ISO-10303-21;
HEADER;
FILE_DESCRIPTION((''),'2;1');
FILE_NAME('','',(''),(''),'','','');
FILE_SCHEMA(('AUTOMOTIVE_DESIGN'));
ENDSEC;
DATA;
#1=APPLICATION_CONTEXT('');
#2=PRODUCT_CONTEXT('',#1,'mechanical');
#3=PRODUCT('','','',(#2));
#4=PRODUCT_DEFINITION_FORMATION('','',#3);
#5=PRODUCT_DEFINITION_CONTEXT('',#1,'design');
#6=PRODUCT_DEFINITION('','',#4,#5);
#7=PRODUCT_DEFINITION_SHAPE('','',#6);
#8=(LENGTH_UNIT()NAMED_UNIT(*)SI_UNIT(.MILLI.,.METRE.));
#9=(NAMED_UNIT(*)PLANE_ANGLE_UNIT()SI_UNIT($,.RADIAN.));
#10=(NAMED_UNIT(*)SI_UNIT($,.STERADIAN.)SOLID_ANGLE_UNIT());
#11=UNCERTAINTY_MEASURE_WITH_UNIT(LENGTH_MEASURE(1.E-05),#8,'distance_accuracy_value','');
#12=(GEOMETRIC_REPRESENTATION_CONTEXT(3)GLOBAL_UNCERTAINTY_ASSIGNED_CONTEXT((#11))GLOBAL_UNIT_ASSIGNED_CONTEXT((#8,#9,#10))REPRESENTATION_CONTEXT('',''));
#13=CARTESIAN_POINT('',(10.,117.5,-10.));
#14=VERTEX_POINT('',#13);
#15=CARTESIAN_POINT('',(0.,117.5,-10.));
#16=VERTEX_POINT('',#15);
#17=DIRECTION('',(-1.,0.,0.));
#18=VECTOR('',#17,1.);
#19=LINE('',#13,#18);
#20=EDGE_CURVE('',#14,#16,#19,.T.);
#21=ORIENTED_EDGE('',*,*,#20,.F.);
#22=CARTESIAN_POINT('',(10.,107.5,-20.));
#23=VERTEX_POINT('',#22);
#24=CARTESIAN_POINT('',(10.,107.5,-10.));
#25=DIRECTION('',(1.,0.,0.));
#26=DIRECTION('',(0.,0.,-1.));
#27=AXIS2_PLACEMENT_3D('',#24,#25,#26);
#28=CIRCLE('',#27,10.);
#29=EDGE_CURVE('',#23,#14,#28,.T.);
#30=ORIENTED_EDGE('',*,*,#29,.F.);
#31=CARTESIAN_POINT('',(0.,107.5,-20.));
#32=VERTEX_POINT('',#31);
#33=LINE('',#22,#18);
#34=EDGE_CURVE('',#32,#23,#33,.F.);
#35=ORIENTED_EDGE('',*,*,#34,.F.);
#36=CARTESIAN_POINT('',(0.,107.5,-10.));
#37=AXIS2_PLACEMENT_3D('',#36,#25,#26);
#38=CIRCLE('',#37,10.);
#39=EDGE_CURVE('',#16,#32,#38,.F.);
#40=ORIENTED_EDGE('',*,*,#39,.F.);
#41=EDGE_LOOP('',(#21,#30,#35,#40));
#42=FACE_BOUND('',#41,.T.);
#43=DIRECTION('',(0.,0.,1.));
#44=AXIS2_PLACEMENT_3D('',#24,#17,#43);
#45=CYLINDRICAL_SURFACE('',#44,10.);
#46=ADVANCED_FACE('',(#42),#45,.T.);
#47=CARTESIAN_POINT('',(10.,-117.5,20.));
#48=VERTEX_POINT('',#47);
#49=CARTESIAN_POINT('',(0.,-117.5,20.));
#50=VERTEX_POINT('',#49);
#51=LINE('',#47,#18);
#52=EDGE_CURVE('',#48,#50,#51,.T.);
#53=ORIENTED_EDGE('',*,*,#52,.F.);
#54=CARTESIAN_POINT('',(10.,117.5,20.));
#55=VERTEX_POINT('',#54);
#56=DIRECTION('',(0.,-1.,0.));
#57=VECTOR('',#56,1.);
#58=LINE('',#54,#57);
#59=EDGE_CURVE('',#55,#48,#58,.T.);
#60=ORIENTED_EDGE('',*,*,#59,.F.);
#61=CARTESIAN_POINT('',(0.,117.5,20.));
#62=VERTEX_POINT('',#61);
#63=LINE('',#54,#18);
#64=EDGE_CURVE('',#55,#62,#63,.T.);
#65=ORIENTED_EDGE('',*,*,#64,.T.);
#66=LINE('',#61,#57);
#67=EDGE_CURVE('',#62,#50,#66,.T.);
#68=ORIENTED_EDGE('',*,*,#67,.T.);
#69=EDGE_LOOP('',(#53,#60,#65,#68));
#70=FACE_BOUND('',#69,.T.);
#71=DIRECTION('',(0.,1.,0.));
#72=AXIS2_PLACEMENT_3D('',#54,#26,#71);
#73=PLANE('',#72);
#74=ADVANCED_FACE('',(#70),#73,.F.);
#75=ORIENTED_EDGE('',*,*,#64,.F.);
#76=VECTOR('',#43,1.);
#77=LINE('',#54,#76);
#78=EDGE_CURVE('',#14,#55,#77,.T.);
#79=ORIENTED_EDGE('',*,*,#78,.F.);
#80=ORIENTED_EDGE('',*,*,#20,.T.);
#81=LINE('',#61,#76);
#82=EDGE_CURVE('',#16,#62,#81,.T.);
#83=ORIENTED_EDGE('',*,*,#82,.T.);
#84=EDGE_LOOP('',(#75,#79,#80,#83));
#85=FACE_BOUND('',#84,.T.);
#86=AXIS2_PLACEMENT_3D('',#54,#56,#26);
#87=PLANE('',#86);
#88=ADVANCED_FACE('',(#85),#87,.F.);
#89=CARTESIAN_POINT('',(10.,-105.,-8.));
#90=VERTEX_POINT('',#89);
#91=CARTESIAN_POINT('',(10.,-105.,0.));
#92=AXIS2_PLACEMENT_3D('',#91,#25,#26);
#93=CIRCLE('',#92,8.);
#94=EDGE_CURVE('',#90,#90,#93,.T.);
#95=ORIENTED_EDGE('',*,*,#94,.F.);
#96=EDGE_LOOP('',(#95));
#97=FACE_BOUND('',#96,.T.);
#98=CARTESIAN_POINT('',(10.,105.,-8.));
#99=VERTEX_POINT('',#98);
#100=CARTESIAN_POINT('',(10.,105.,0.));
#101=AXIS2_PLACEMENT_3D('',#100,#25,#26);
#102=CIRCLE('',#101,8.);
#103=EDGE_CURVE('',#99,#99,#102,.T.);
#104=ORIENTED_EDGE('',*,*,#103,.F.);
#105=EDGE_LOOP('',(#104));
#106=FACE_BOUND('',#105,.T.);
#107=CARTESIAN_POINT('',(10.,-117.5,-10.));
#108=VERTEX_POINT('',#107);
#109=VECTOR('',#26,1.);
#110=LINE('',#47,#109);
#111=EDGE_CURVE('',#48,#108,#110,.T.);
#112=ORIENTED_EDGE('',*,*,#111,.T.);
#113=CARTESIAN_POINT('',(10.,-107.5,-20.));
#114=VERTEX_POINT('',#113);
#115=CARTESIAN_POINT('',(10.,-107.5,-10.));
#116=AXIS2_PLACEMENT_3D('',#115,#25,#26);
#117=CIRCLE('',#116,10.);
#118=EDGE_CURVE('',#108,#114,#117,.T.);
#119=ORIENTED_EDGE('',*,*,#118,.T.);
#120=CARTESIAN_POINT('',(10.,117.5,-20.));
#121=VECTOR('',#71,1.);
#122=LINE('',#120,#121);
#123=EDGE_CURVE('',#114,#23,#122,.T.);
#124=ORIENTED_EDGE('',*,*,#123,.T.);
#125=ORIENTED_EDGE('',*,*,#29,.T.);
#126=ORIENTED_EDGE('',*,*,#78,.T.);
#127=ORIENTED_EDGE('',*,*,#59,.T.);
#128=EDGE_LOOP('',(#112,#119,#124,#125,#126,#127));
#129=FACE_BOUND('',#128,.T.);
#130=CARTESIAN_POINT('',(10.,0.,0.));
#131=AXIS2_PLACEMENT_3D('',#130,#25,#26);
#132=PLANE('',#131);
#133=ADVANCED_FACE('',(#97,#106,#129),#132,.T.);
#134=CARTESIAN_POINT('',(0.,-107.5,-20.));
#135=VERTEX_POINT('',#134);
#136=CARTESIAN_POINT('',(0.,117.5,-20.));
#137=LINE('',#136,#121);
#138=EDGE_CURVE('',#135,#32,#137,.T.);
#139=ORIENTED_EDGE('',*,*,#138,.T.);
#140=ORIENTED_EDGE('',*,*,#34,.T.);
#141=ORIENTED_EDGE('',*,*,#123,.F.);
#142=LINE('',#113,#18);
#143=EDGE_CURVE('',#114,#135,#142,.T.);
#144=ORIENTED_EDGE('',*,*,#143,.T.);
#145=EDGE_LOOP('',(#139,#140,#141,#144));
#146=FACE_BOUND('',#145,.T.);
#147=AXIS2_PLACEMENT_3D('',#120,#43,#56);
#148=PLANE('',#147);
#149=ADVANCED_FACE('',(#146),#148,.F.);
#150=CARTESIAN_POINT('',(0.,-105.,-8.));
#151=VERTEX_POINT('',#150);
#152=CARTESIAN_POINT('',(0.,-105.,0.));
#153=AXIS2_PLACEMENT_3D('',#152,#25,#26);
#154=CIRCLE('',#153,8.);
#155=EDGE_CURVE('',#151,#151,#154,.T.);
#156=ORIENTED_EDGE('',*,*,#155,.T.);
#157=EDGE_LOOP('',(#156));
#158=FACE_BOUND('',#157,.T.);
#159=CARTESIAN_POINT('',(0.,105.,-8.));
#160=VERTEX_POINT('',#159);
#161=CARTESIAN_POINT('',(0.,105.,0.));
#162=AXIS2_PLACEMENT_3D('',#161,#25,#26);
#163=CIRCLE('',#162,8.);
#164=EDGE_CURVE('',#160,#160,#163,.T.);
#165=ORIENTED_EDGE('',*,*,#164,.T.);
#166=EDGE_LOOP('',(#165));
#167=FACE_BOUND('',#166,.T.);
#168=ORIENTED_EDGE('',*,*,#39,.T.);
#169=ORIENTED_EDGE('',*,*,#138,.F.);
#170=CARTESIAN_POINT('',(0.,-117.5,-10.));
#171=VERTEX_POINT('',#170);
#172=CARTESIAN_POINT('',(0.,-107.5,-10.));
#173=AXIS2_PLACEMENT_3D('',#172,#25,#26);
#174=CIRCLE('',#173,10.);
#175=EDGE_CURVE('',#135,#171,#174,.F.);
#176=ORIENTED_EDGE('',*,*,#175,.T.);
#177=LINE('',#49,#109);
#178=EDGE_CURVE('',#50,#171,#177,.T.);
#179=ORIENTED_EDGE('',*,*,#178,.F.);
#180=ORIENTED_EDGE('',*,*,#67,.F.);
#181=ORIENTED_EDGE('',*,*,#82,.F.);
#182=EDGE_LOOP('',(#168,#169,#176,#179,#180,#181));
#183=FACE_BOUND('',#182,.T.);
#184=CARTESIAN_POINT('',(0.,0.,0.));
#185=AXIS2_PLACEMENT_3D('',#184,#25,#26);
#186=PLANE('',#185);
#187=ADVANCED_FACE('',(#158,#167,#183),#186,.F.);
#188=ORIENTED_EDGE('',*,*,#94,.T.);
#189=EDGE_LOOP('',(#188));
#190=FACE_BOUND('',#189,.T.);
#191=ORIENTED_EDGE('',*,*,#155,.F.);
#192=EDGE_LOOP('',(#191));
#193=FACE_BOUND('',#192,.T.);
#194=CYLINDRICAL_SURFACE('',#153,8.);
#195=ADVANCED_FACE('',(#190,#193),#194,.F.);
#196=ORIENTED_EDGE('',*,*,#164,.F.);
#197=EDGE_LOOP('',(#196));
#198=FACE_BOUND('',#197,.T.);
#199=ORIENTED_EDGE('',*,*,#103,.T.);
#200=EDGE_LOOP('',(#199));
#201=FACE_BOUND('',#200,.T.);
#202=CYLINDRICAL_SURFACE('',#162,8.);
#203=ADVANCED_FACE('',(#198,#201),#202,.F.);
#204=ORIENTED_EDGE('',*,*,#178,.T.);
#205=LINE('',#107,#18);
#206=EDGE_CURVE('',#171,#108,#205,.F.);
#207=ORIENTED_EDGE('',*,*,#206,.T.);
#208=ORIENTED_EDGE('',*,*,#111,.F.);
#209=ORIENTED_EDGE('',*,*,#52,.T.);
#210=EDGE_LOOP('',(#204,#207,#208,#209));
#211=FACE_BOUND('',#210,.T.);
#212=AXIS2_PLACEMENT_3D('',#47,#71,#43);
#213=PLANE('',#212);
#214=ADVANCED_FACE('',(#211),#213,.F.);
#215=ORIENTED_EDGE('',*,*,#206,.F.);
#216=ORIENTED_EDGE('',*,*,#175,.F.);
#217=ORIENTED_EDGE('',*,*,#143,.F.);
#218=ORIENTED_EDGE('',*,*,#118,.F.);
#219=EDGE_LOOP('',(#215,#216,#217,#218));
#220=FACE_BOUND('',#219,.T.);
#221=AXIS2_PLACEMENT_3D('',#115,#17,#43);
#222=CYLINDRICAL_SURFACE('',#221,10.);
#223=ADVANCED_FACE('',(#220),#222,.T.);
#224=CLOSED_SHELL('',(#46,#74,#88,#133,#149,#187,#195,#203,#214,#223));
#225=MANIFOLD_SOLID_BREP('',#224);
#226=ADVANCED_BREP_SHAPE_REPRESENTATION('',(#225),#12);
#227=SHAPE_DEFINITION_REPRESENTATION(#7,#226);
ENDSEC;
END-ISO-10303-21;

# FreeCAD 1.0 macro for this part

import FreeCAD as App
import Part
import Sketcher
Q = App.Units.Quantity


def edges_at(feature, points):
    """Names of the edges that pass closest to the given points."""
    edges = feature.Shape.Edges
    near = lambda p: min(range(len(edges)), key=lambda i: edges[i].distToShape(Part.Vertex(*p))[0])
    return sorted({f"Edge{near(p) + 1}" for p in points})


def add_polygon(sketch, points):
    """Adds a closed chain of lines whose ends are joined by coincident constraints."""
    first, n = sketch.GeometryCount, len(points)
    for a, b in zip(points, points[1:] + points[:1]):
        sketch.addGeometry(Part.LineSegment(App.Vector(*a, 0), App.Vector(*b, 0)), False)
    for i in range(n):
        sketch.addConstraint(Sketcher.Constraint("Coincident", first + i, 2, first + (i + 1) % n, 1))

doc = App.newDocument("Part")
body = doc.addObject("PartDesign::Body", "Body")

sketch1 = body.newObject("Sketcher::SketchObject", "Sketch")
sketch1.AttachmentSupport = (doc.getObject("YZ_Plane"), [""])
sketch1.MapMode = "FlatFace"
add_polygon(sketch1, [(118, 20), (-118, 20), (-118, -20), (118, -20)])
sketch1.addConstraint([
    Sketcher.Constraint("Horizontal", 0),
    Sketcher.Constraint("Vertical", 1),
    Sketcher.Constraint("Horizontal", 2),
    Sketcher.Constraint("Vertical", 3),
    Sketcher.Constraint("Symmetric", 0, 2, 2, 2, -1, 1),
    Sketcher.Constraint("DistanceX", 0, 2, 0, 1, Q("235 mm")),
    Sketcher.Constraint("DistanceY", 1, 2, 1, 1, Q("40 mm")),
])
pad1 = body.newObject("PartDesign::Pad", "Pad")
pad1.Profile = sketch1
pad1.Length = 10

sketch2 = body.newObject("Sketcher::SketchObject", "Sketch001")
sketch2.AttachmentSupport = (doc.getObject("YZ_Plane"), [""])
sketch2.MapMode = "FlatFace"
sketch2.AttachmentOffset = App.Placement(App.Vector(0, 0, 10), App.Rotation())
sketch2.addGeometry([
    Part.Circle(App.Vector(105, 0, 0), App.Vector(0, 0, 1), 8),
    Part.Circle(App.Vector(-105, 0, 0), App.Vector(0, 0, 1), 8),
], False)
sketch2.addConstraint([
    Sketcher.Constraint("Equal", 0, 1),
    Sketcher.Constraint("Symmetric", 0, 3, 1, 3, -1, 1),
    Sketcher.Constraint("PointOnObject", 0, 3, -1),
    Sketcher.Constraint("Diameter", 0, Q("16 mm")),
    Sketcher.Constraint("DistanceX", -1, 1, 0, 3, Q("105 mm")),
])
pocket1 = body.newObject("PartDesign::Pocket", "Pocket")
pocket1.Profile = sketch2
pocket1.Type = "ThroughAll"
doc.recompute()

fillet = body.newObject("PartDesign::Fillet", "Fillet")
fillet.Base = (pocket1, edges_at(pocket1, [(5, -117.5, -20), (5, 117.5, -20)]))
fillet.Radius = 10

doc.recompute()
